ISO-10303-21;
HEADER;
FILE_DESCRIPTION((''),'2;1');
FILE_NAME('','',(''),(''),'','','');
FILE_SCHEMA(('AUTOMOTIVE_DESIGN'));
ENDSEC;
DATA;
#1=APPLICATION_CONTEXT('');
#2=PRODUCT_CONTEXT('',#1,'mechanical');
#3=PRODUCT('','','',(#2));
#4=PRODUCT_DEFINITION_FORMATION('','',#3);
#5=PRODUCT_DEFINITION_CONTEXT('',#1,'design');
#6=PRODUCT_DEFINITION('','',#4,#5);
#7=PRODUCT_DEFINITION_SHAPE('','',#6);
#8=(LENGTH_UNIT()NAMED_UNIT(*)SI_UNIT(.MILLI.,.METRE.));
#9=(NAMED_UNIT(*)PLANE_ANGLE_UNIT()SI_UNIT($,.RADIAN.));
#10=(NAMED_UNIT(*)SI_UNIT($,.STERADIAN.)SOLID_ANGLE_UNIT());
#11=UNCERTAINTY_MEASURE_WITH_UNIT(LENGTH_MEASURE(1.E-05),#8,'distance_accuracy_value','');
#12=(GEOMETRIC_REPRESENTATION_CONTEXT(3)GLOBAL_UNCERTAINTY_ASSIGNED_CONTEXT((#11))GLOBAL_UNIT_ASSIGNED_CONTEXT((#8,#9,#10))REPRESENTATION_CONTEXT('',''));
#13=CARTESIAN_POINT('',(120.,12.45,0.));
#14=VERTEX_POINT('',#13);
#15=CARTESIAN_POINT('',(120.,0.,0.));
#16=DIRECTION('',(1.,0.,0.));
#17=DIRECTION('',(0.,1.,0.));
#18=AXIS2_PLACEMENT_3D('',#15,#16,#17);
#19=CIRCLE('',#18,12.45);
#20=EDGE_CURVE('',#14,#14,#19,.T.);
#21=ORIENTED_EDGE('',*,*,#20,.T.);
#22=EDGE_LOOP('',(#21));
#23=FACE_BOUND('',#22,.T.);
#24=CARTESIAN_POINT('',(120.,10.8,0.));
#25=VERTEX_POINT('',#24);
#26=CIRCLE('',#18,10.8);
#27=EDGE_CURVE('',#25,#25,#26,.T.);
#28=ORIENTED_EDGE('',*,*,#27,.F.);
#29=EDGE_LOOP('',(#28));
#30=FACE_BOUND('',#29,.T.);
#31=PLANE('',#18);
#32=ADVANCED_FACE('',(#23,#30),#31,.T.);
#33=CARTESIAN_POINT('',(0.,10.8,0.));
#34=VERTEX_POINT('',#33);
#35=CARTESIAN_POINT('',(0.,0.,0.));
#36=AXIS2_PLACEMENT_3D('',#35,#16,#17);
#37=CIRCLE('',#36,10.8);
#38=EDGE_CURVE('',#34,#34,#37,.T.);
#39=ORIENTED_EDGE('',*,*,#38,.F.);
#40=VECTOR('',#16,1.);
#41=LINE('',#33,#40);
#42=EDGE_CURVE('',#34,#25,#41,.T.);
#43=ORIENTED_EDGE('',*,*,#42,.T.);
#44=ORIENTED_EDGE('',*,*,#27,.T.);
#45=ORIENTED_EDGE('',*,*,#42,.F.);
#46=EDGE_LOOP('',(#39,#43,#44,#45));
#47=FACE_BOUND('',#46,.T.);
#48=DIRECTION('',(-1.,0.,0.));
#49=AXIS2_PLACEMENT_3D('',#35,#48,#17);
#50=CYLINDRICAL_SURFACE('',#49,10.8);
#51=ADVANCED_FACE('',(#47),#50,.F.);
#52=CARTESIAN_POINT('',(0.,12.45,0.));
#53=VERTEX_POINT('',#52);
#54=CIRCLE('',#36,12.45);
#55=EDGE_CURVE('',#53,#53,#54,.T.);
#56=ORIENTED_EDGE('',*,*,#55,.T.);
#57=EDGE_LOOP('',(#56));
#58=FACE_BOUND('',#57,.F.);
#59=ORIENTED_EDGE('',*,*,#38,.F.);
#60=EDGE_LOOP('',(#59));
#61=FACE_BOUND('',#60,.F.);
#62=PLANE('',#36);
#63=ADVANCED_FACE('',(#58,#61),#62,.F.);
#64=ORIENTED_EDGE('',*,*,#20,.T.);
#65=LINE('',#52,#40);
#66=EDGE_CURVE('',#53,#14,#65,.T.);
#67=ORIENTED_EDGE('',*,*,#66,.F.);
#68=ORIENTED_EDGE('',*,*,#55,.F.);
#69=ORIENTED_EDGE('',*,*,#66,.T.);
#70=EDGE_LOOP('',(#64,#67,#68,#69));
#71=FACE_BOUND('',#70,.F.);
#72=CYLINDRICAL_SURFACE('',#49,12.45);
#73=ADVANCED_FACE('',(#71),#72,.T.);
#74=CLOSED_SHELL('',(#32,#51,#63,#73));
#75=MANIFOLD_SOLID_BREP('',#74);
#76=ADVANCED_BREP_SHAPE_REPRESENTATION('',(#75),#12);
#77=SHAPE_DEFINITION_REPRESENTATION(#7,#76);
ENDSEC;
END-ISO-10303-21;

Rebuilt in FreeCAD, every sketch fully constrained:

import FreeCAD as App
import Part
import Sketcher

V = App.Vector

doc = App.newDocument("Part")
body = doc.addObject("PartDesign::Body", "Body")

# Sketch on YZ plane
sketch1 = doc.addObject("Sketcher::SketchObject", "Sketch")
body.addObject(sketch1)
sketch1.AttachmentSupport = (doc.YZ_Plane, [""])
sketch1.MapMode = "FlatFace"
sketch1.addGeometry(Part.Circle(V(0, 0, 0), V(0, 0, 1), 12.45), False)
sketch1.addGeometry(Part.Circle(V(0, 0, 0), V(0, 0, 1), 10.8), False)
sketch1.addConstraint(Sketcher.Constraint("Coincident", 0, 3, -1, 1))
sketch1.addConstraint(Sketcher.Constraint("Coincident", 1, 3, -1, 1))
sketch1.addConstraint(Sketcher.Constraint("Diameter", 0, 24.9))
sketch1.addConstraint(Sketcher.Constraint("Diameter", 1, 21.6))
pad1 = doc.addObject("PartDesign::Pad", "Pad")
body.addObject(pad1)
pad1.Profile = sketch1
pad1.Length = 120

doc.recompute()
